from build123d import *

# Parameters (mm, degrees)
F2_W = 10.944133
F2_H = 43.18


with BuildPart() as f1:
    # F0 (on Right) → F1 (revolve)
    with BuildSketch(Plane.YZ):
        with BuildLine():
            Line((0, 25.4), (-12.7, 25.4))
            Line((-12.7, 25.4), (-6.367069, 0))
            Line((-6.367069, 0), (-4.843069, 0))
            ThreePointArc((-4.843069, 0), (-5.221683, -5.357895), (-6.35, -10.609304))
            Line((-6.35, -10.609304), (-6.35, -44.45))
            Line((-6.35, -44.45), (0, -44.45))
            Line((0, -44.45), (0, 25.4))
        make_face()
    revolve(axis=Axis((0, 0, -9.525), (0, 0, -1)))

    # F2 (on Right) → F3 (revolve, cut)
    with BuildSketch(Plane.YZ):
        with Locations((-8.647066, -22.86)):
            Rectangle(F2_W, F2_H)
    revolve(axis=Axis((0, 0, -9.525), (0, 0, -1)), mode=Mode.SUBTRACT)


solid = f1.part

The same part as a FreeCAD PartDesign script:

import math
import FreeCAD as App
import Part
import Sketcher
from FreeCAD import Vector
Q = App.Units.Quantity

doc = App.newDocument("Part")
body = doc.addObject("PartDesign::Body", "Body")

# Sketch on YZ plane
sketch1 = doc.addObject("Sketcher::SketchObject", "Sketch")
body.addObject(sketch1)
sketch1.AttachmentSupport = (doc.YZ_Plane, [""])
sketch1.MapMode = "FlatFace"
sketch1.addGeometry([
    Part.LineSegment(Vector(0, 25.4, 0), Vector(-12.7, 25.4, 0)),  # 0
    Part.LineSegment(Vector(-12.7, 25.4, 0), Vector(-6.4, 0, 0)),  # 1
    Part.LineSegment(Vector(-6.4, 0, 0), Vector(-4.8, 0, 0)),  # 2
    Part.ArcOfCircle(Part.Circle(Vector(-42.9, 0, 0), Vector(0, 0, 1), 38.1), math.radians(-16.17), math.radians(0)),  # 3
    Part.LineSegment(Vector(-6.3, -10.6, 0), Vector(-6.3, -44.5, 0)),  # 4
    Part.LineSegment(Vector(-6.3, -44.5, 0), Vector(0, -44.5, 0)),  # 5
    Part.LineSegment(Vector(0, -44.5, 0), Vector(0, 25.4, 0)),  # 6
], False)
sketch1.addConstraint([
    Sketcher.Constraint("Coincident", 0, 2, 1, 1),
    Sketcher.Constraint("Coincident", 1, 2, 2, 1),
    Sketcher.Constraint("Coincident", 2, 2, 3, 2),
    Sketcher.Constraint("Coincident", 3, 1, 4, 1),
    Sketcher.Constraint("Coincident", 4, 2, 5, 1),
    Sketcher.Constraint("Coincident", 5, 2, 6, 1),
    Sketcher.Constraint("Coincident", 6, 2, 0, 1),
    Sketcher.Constraint("Horizontal", 0),
    Sketcher.Constraint("Horizontal", 2),
    Sketcher.Constraint("Vertical", 4),
    Sketcher.Constraint("Horizontal", 5),
    Sketcher.Constraint("Vertical", 6),
    Sketcher.Constraint("PointOnObject", 3, 3, -1),
    Sketcher.Constraint("PointOnObject", 1, 2, -1),
    Sketcher.Constraint("PointOnObject", 5, 2, -2),
    Sketcher.Constraint("DistanceX", 0, 2, 0, 1, Q("0.5 in")),
    Sketcher.Constraint("DistanceY", -1, 1, 0, 2, Q("1 in")),
    Sketcher.Constraint("Angle", 1, Q("-76.000001 deg")),
    Sketcher.Constraint("DistanceX", 2, 1, 2, 2, Q("0.06 in")),
    Sketcher.Constraint("DistanceX", 5, 1, 5, 2, Q("0.25 in")),
    Sketcher.Constraint("DistanceY", 6, 1, 6, 2, Q("2.75 in")),
    Sketcher.Constraint("Radius", 3, Q("38.100019 mm")),
])
revolution = doc.addObject("PartDesign::Revolution", "Revolution")
body.addObject(revolution)
revolution.Profile = sketch1
revolution.ReferenceAxis = (sketch1, ["V_Axis"])
revolution.Angle = 360

# Sketch on YZ plane
sketch2 = doc.addObject("Sketcher::SketchObject", "Sketch001")
body.addObject(sketch2)
sketch2.AttachmentSupport = (doc.YZ_Plane, [""])
sketch2.MapMode = "FlatFace"
sketch2.addGeometry([
    Part.LineSegment(Vector(-14, -1, 0), Vector(-14, -44, 0)),
    Part.LineSegment(Vector(-14, -44, 0), Vector(-3, -44, 0)),
    Part.LineSegment(Vector(-3, -44, 0), Vector(-3, -1, 0)),
    Part.LineSegment(Vector(-3, -1, 0), Vector(-14, -1, 0)),
], False)
sketch2.addConstraint([
    Sketcher.Constraint("Coincident", 0, 2, 1, 1),
    Sketcher.Constraint("Coincident", 1, 2, 2, 1),
    Sketcher.Constraint("Coincident", 2, 2, 3, 1),
    Sketcher.Constraint("Coincident", 3, 2, 0, 1),
    Sketcher.Constraint("Vertical", 0),
    Sketcher.Constraint("Horizontal", 1),
    Sketcher.Constraint("Vertical", 2),
    Sketcher.Constraint("Horizontal", 3),
    Sketcher.Constraint("DistanceY", 0, 2, 0, 1, Q("1.7 in")),
    Sketcher.Constraint("DistanceY", 0, 2, -1, 1, Q("1.75 in")),
    Sketcher.Constraint("DistanceX", 1, 2, -1, 1, Q("0.125 in")),
    Sketcher.Constraint("DistanceX", 1, 1, 1, 2, Q("10.944133 mm")),
])
groove = doc.addObject("PartDesign::Groove", "Groove")
body.addObject(groove)
groove.Profile = sketch2
groove.ReferenceAxis = (sketch2, ["V_Axis"])
groove.Angle = 360

doc.recompute()
